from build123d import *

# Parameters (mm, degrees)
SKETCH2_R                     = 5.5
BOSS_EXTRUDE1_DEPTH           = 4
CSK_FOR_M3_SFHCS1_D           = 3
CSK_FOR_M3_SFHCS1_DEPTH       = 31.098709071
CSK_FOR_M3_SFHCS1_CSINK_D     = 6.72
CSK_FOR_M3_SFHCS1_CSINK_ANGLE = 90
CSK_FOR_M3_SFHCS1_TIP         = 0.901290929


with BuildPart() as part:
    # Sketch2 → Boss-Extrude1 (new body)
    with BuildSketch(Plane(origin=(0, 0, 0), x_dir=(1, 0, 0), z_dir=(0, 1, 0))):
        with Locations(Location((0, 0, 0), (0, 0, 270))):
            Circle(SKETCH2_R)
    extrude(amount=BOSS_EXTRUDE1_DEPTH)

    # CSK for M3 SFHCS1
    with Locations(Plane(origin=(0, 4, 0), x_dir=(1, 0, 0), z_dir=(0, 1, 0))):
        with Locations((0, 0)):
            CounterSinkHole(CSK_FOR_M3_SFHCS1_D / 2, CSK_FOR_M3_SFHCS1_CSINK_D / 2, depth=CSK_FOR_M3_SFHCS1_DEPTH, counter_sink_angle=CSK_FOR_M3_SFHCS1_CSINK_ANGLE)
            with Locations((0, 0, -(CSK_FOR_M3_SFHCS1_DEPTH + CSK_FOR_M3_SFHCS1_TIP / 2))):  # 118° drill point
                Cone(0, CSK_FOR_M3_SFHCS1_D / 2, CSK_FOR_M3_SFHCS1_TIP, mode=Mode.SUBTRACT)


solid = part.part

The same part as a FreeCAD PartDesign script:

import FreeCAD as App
import Part
import Sketcher
from FreeCAD import Vector

doc = App.newDocument("Part")
params = doc.addObject("Spreadsheet::Sheet", "Params")
for row, (alias, value) in enumerate([
    ("sketch1_diameter", "11 mm"),
    ("pad1_length", "4 mm"),
    ("sketch2_diameter", "3 mm"),
    ("hole_diameter", "3 mm"),
    ("hole_depth", "31.098709 mm"),
    ("hole_csink_diameter", "6.72 mm"),
], start=1):
    params.set(f"A{row}", alias)
    params.set(f"B{row}", "=" + value)
    params.setAlias(f"B{row}", alias)

body = doc.addObject("PartDesign::Body", "Body")

sketch1 = body.newObject("Sketcher::SketchObject", "Sketch")
sketch1.AttachmentSupport = (doc.getObject("XZ_Plane"), [""])
sketch1.MapMode = "FlatFace"
sketch1.addGeometry(Part.Circle(Vector(0, 0, 0), Vector(0, 0, 1), 5.5), False)
sketch1.addConstraint([
    Sketcher.Constraint("Coincident", 0, 3, -1, 1),
    Sketcher.Constraint("Diameter", 0, 11.0),
])
sketch1.setExpression("Constraints[1]", "Params.sketch1_diameter")
pad1 = body.newObject("PartDesign::Pad", "Pad")
pad1.Profile = sketch1
pad1.setExpression("Length", "Params.pad1_length")
pad1.Reversed = True

sketch2 = body.newObject("Sketcher::SketchObject", "Sketch001")
sketch2.AttachmentSupport = (doc.getObject("XZ_Plane"), [""])
sketch2.MapMode = "FlatFace"
sketch2.AttachmentOffset = App.Placement(Vector(0, 0, -4), App.Rotation())
sketch2.addGeometry(Part.Circle(Vector(0, 0, 0), Vector(0, 0, 1), 1.5), False)
sketch2.addConstraint([
    Sketcher.Constraint("Coincident", 0, 3, -1, 1),
    Sketcher.Constraint("Diameter", 0, 3.0),
])
sketch2.setExpression("Constraints[1]", "Params.sketch2_diameter")
doc.recompute()
hole = body.newObject("PartDesign::Hole", "Hole")
hole.Profile = sketch2
hole.ThreadType = "None"
hole.setExpression("Diameter", "Params.hole_diameter")
hole.DepthType = "Dimension"
hole.setExpression("Depth", "Params.hole_depth")
hole.DrillPoint = "Angled"
hole.DrillPointAngle = 118
hole.HoleCutType = "Countersink"
hole.setExpression("HoleCutDiameter", "Params.hole_csink_diameter")
hole.HoleCutCountersinkAngle = 90
hole.Reversed = True

doc.recompute()
